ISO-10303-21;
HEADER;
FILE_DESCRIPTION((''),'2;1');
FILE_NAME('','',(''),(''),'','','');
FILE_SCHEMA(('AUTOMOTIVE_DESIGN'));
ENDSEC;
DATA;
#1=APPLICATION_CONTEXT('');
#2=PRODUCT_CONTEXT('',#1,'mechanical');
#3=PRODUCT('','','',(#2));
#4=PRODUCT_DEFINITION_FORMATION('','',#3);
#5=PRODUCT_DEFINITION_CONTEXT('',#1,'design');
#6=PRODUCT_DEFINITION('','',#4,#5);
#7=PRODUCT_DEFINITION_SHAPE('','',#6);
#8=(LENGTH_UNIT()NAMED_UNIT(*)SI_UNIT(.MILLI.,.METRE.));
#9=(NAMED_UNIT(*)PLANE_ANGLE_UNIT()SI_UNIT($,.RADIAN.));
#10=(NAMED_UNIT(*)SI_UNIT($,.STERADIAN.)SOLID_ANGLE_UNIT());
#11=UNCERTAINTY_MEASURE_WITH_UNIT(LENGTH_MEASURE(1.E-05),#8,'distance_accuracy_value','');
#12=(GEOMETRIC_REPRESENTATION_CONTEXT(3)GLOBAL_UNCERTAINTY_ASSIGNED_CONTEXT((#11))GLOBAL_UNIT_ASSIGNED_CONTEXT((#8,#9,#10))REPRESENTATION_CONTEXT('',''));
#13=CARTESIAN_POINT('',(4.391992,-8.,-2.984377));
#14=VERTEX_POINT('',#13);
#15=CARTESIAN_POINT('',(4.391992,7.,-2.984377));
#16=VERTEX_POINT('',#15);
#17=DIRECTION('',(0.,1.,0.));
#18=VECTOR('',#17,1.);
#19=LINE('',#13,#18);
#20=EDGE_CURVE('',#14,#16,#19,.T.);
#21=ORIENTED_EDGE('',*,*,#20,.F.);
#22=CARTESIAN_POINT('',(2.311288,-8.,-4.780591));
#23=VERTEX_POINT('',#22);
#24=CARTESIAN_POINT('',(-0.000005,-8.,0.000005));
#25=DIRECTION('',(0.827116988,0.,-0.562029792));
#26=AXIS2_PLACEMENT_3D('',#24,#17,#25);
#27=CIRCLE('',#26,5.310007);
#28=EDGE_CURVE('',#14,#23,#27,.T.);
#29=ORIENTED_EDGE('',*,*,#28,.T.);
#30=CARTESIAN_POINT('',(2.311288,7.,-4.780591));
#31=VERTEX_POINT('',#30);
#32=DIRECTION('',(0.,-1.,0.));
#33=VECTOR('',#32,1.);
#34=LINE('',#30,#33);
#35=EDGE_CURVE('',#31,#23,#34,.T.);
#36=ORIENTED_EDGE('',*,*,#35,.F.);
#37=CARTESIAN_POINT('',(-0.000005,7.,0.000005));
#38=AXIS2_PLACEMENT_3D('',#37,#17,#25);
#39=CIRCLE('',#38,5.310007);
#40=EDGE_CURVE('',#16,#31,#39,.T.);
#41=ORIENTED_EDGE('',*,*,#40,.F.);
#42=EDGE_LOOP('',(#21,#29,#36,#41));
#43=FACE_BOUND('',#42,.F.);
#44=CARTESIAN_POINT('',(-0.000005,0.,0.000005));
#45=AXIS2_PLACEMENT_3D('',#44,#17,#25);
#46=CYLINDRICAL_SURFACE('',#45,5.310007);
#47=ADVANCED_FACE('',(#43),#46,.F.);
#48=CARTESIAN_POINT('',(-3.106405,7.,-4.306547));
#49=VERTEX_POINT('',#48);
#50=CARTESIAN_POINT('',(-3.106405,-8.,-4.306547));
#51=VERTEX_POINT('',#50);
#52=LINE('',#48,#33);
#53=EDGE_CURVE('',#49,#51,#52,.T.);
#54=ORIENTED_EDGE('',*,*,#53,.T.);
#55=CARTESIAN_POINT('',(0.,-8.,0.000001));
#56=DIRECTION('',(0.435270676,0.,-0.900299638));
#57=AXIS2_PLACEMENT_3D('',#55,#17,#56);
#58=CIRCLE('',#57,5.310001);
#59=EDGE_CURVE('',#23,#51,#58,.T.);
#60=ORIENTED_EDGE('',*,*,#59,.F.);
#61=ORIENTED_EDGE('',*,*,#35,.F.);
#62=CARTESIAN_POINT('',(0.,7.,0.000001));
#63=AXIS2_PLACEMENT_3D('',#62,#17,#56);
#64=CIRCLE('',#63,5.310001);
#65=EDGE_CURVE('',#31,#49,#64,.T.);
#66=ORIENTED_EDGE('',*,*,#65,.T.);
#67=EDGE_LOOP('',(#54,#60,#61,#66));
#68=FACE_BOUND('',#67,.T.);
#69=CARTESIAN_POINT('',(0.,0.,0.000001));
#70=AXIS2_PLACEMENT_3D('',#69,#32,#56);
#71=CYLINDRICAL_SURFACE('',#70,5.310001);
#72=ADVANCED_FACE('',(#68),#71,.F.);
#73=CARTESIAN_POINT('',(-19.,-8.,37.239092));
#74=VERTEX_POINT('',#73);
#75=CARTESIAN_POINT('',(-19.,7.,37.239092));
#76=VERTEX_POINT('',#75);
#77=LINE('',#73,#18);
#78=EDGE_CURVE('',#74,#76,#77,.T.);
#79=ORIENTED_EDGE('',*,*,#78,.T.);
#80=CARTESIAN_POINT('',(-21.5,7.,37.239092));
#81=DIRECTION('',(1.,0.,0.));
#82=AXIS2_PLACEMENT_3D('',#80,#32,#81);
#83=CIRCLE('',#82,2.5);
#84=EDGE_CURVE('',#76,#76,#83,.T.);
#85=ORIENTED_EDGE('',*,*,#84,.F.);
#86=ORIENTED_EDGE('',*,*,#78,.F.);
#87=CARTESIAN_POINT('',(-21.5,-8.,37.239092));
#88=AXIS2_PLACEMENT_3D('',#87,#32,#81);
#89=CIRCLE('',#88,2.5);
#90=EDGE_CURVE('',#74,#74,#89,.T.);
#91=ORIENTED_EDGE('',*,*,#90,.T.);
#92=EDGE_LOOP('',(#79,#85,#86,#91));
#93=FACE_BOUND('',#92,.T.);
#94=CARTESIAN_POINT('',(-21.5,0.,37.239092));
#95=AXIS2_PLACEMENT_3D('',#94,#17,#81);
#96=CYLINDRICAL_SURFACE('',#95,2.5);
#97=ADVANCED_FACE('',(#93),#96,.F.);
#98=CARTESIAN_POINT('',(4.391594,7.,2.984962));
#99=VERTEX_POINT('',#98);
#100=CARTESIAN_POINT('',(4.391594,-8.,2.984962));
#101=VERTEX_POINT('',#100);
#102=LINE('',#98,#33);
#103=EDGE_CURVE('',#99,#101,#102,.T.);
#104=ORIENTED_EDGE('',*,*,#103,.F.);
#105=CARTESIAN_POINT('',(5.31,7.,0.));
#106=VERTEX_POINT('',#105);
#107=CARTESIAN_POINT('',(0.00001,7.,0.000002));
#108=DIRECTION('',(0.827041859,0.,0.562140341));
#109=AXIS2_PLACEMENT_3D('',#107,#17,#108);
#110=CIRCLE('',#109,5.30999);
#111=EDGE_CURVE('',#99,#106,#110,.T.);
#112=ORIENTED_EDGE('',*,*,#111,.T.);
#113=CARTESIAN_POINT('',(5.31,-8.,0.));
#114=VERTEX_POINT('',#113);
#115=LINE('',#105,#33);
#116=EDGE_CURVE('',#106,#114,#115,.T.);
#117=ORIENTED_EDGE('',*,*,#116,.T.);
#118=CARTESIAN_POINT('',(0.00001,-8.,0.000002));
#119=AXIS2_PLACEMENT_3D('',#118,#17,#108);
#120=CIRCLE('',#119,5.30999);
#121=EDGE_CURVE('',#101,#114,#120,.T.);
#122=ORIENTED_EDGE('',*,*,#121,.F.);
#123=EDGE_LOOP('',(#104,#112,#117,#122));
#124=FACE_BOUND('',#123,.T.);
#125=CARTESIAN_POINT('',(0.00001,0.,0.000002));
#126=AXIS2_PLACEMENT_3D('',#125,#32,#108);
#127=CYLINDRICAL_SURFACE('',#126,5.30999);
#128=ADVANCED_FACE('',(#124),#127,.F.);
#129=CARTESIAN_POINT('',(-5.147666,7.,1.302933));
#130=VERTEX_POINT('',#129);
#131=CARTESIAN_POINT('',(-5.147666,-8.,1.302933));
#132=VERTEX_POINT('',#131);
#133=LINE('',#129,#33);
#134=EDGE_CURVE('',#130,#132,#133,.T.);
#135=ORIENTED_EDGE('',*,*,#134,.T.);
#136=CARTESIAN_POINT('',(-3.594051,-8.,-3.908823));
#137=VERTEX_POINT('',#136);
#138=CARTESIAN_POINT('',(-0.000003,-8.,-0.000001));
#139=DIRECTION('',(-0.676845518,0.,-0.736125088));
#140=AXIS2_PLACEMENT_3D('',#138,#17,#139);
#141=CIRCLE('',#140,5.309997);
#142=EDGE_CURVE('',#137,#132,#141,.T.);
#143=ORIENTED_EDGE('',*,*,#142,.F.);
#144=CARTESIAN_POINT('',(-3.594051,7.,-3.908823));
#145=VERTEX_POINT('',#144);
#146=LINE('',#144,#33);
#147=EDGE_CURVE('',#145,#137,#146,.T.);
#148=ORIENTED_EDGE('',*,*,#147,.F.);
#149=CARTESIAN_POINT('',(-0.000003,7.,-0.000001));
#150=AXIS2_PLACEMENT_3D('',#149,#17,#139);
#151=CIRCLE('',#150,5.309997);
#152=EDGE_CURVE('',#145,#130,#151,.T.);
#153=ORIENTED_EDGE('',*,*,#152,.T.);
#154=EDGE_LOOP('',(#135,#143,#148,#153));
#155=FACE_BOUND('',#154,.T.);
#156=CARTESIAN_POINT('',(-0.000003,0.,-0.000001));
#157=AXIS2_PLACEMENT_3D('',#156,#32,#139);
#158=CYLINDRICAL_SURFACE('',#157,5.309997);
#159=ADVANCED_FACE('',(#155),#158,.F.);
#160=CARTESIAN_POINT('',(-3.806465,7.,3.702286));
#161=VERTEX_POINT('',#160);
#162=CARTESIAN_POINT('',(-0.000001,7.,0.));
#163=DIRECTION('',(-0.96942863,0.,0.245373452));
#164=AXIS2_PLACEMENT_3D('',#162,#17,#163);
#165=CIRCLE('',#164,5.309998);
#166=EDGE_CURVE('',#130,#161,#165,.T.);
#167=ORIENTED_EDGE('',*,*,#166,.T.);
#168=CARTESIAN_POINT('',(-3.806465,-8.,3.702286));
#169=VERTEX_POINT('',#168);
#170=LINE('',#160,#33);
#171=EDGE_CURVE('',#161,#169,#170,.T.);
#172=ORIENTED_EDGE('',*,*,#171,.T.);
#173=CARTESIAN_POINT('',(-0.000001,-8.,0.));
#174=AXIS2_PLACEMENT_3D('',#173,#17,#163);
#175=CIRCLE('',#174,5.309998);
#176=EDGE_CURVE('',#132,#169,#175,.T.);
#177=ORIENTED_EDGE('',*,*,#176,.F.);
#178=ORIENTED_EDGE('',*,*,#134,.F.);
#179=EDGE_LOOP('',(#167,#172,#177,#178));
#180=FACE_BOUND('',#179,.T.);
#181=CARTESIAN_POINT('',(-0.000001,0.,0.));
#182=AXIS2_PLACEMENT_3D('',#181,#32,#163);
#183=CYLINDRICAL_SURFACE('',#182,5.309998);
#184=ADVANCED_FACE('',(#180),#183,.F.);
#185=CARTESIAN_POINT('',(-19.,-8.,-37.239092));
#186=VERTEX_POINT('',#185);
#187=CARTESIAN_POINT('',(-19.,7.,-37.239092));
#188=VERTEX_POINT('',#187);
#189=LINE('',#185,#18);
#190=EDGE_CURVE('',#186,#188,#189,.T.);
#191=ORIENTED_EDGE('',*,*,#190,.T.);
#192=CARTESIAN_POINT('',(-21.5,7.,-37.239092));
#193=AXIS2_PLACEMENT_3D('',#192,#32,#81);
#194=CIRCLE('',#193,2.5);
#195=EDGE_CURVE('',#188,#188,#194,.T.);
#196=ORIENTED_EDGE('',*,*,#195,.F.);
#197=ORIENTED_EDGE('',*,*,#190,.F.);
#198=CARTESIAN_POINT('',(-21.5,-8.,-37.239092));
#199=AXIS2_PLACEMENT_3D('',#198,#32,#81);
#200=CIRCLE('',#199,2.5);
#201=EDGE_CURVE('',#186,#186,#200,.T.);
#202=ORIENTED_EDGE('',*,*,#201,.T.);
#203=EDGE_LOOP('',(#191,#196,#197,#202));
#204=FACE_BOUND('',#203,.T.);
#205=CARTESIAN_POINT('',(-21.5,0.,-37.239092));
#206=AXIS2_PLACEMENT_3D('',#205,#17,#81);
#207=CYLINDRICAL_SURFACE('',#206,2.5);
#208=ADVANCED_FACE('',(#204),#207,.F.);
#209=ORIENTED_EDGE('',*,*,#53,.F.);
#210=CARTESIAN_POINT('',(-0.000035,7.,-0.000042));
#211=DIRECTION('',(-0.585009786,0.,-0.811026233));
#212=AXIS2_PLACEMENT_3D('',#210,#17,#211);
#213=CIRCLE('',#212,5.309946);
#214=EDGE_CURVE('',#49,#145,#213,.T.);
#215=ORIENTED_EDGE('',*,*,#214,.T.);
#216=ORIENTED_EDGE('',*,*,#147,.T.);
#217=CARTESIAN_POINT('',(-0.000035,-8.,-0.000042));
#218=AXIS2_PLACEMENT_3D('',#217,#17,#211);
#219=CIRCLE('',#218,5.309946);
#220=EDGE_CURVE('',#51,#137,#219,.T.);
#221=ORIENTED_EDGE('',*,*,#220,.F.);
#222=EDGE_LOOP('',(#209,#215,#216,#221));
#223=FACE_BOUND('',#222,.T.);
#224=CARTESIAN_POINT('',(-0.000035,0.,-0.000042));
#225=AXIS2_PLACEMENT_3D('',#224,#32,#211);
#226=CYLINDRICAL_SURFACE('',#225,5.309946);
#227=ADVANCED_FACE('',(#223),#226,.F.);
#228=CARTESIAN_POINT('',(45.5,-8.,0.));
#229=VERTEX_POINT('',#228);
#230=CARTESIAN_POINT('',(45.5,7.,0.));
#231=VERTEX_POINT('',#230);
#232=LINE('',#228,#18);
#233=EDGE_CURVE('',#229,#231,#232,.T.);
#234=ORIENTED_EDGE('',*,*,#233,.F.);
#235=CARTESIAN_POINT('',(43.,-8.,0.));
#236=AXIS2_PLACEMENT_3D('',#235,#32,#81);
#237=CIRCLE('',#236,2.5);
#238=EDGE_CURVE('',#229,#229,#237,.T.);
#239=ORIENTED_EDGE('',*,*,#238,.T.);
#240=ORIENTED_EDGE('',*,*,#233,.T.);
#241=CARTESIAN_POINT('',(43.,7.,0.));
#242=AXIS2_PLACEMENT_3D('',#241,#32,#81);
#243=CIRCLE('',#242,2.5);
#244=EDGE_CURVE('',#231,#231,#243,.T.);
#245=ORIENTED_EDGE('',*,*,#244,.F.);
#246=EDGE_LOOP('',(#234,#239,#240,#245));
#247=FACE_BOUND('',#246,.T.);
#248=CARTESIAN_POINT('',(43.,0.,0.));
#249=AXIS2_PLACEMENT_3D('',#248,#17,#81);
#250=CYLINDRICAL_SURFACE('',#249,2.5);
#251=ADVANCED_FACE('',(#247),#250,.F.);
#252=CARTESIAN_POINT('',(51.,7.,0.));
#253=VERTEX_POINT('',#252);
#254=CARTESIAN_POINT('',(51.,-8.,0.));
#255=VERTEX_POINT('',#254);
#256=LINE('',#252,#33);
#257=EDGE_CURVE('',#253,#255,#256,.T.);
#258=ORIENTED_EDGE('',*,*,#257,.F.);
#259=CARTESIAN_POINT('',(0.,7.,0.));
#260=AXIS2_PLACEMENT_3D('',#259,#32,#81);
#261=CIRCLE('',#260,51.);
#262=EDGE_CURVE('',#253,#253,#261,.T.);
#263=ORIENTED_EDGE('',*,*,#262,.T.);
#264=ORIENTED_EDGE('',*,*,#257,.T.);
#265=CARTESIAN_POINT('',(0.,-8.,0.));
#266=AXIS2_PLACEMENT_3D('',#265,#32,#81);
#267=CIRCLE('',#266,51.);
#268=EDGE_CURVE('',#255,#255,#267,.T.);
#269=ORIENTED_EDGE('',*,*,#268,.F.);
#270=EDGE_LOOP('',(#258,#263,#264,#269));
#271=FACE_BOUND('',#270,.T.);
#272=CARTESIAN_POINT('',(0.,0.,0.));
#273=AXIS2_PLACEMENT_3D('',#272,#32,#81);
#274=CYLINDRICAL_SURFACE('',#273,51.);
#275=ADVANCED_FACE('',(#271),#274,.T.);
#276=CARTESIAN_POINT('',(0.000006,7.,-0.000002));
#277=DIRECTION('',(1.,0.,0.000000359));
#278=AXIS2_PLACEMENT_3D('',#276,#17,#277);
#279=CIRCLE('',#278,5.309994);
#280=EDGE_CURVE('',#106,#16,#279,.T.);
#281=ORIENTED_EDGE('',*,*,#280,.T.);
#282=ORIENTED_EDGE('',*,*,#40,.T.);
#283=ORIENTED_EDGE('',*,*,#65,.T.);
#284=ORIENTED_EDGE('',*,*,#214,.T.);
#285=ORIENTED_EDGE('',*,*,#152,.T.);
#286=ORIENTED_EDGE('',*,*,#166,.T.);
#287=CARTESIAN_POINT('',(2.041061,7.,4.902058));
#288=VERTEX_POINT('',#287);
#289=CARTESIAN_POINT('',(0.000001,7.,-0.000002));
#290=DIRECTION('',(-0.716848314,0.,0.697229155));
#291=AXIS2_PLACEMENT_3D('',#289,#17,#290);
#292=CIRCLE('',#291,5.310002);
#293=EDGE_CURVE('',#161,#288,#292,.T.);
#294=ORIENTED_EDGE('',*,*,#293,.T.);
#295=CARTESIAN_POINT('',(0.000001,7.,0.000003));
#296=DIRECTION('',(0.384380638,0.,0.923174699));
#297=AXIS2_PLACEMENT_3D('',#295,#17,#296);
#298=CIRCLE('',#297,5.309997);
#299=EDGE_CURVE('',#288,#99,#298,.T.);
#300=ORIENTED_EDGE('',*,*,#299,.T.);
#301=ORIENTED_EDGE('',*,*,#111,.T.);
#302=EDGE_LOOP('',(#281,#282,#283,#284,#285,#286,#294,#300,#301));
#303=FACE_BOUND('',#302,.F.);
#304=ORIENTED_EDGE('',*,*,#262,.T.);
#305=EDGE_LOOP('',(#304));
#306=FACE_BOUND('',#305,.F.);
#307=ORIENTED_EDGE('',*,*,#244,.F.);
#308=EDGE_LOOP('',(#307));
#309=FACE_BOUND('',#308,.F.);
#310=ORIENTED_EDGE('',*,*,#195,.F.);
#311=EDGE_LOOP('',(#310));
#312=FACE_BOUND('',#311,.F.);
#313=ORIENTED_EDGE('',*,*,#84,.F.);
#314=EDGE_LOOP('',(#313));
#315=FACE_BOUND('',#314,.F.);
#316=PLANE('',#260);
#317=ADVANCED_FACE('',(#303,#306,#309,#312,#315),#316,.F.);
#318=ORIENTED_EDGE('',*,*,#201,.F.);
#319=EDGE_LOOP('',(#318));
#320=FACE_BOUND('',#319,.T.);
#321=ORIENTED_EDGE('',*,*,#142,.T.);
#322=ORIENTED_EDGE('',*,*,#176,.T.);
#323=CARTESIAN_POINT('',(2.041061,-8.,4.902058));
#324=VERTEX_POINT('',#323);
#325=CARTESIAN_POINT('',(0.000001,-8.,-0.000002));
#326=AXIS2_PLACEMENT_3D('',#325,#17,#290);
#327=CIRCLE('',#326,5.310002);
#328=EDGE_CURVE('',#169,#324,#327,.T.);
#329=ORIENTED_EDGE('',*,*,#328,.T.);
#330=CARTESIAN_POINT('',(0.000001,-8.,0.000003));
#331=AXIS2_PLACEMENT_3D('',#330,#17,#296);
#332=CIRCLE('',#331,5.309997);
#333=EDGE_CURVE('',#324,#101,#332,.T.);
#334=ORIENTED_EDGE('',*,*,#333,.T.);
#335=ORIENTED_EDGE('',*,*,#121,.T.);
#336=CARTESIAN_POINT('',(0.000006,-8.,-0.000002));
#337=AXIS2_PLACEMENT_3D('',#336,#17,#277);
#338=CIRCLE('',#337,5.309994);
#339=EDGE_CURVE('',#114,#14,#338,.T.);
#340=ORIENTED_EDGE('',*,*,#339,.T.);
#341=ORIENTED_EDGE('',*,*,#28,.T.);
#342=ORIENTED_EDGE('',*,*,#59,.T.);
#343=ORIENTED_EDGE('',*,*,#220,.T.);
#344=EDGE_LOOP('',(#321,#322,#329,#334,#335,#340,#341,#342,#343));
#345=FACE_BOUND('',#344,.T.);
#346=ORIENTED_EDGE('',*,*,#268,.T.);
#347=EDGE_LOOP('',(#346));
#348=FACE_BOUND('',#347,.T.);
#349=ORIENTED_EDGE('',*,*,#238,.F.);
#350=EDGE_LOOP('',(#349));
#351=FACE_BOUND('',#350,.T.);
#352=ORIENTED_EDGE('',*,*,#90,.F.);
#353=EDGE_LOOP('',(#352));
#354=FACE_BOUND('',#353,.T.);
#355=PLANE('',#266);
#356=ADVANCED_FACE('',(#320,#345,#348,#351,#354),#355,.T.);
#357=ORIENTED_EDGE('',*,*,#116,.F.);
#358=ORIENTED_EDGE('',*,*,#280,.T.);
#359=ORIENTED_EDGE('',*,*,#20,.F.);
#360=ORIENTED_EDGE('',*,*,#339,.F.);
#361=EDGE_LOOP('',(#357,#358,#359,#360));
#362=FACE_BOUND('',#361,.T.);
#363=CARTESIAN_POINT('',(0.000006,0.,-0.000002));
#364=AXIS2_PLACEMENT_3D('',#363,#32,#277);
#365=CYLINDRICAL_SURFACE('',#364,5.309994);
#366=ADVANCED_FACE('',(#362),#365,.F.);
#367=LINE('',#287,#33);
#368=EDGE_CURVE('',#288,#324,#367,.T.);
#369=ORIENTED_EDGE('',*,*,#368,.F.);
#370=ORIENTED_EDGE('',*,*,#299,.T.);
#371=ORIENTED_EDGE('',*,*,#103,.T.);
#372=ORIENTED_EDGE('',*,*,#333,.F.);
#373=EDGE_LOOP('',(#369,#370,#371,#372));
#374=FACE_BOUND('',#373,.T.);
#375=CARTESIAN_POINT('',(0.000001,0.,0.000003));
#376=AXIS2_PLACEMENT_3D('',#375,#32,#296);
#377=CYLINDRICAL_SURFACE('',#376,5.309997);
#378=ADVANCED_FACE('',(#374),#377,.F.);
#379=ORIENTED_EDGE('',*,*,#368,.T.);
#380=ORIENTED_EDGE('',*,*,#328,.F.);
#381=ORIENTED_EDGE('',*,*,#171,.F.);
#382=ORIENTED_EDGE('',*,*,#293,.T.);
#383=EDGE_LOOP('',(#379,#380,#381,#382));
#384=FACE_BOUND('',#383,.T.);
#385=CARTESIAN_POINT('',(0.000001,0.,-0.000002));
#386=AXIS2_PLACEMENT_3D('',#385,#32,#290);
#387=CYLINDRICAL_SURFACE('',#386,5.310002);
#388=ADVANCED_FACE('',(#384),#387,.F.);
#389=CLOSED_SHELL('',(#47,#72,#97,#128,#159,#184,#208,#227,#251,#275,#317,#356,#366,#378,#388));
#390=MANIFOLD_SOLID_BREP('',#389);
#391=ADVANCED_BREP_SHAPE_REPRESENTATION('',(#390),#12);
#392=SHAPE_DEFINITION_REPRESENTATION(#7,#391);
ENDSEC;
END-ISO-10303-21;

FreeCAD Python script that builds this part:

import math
import FreeCAD as App
import Part
import Sketcher

V = App.Vector

doc = App.newDocument("Part")
body = doc.addObject("PartDesign::Body", "Body")

# Sketch on XZ plane
sketch1 = body.newObject("Sketcher::SketchObject", "Sketch")
sketch1.AttachmentSupport = (doc.getObject("XZ_Plane"), [""])
sketch1.MapMode = "FlatFace"
sketch1.addGeometry([
    Part.Circle(V(0, 0, 0), V(0, 0, 1), 51),  # 0
    Part.Circle(V(-21.5, -37.239092, 0), V(0, 0, 1), 2.5),  # 1
    Part.ArcOfCircle(Part.Circle(V(0.000001, -0.000002, 0), V(0, 0, 1), 5.310002), math.radians(67.394726), math.radians(135.794881)),  # 2
    Part.ArcOfCircle(Part.Circle(V(0.000001, 0.000003, 0), V(0, 0, 1), 5.309997), math.radians(34.203888), math.radians(67.394705)),  # 3
    Part.ArcOfCircle(Part.Circle(V(0.00001, 0.000002, 0), V(0, 0, 1), 5.30999), math.radians(-0.000026), math.radians(34.203946)),  # 4
    Part.ArcOfCircle(Part.Circle(V(0.000006, -0.000002, 0), V(0, 0, 1), 5.309994), math.radians(-34.196294), math.radians(0.000021)),  # 5
    Part.ArcOfCircle(Part.Circle(V(-0.000005, 0.000005, 0), V(0, 0, 1), 5.310007), math.radians(-64.197448), math.radians(-34.196288)),  # 6
    Part.ArcOfCircle(Part.Circle(V(0, 0.000001, 0), V(0, 0, 1), 5.310001), math.radians(-125.803721), math.radians(-64.197481)),  # 7
    Part.ArcOfCircle(Part.Circle(V(-0.000035, -0.000042, 0), V(0, 0, 1), 5.309946), math.radians(-132.597677), math.radians(-125.803681)),  # 8
    Part.ArcOfCircle(Part.Circle(V(-0.000003, -0.000001, 0), V(0, 0, 1), 5.309997), math.radians(165.796076), math.radians(227.40237)),  # 9
    Part.ArcOfCircle(Part.Circle(V(-0.000001, 0, 0), V(0, 0, 1), 5.309998), math.radians(135.794882), math.radians(165.796095)),  # 10
    Part.Circle(V(-21.5, 37.239092, 0), V(0, 0, 1), 2.5),  # 11
    Part.Circle(V(43, 0, 0), V(0, 0, 1), 2.5),  # 12
], False)
sketch1.addConstraint([
    Sketcher.Constraint("Coincident", 2, 1, 3, 2),
    Sketcher.Constraint("Coincident", 3, 1, 4, 2),
    Sketcher.Constraint("Coincident", 4, 1, 5, 2),
    Sketcher.Constraint("Coincident", 5, 1, 6, 2),
    Sketcher.Constraint("Coincident", 6, 1, 7, 2),
    Sketcher.Constraint("Coincident", 7, 1, 8, 2),
    Sketcher.Constraint("Coincident", 8, 1, 9, 2),
    Sketcher.Constraint("Coincident", 9, 1, 10, 2),
    Sketcher.Constraint("Coincident", 10, 1, 2, 2),
    Sketcher.Constraint("Coincident", 0, 3, -1, 1),
    Sketcher.Constraint("Coincident", 2, 3, -1, 1),
    Sketcher.Constraint("Coincident", 3, 3, -1, 1),
    Sketcher.Constraint("Coincident", 5, 3, -1, 1),
    Sketcher.Constraint("Coincident", 6, 3, -1, 1),
    Sketcher.Constraint("Coincident", 7, 3, -1, 1),
    Sketcher.Constraint("Coincident", 9, 3, -1, 1),
    Sketcher.Constraint("Coincident", 10, 3, -1, 1),
    Sketcher.Constraint("Coincident", 4, 3, 3, 3),
    Sketcher.Constraint("PointOnObject", 12, 3, -1),
    Sketcher.Constraint("PointOnObject", 4, 1, -1),
    Sketcher.Constraint("Diameter", 0, 102.0),
    Sketcher.Constraint("Diameter", 1, 5.0),
    Sketcher.Constraint("Diameter", 11, 5.0),
    Sketcher.Constraint("Diameter", 12, 5.0),
    Sketcher.Constraint("Radius", 2, 5.310002),
    Sketcher.Constraint("DistanceX", -1, 1, 12, 3, 43.0),
    Sketcher.Constraint("DistanceX", 1, 3, -1, 1, 21.5),
    Sketcher.Constraint("DistanceX", 11, 3, -1, 1, 21.5),
    Sketcher.Constraint("Radius", 8, 5.309946),
    Sketcher.Constraint("DistanceX", 7, 1, 9, 3, 3.106402),
    Sketcher.Constraint("DistanceX", 9, 1, 10, 1, 1.341201),
    Sketcher.Constraint("DistanceX", -1, 1, 2, 1, 2.041061),
    Sketcher.Constraint("DistanceY", -1, 1, 3, 1, 2.984962),
    Sketcher.Constraint("DistanceX", -1, 1, 6, 1, 2.311288),
    Sketcher.Constraint("DistanceX", 8, 1, -1, 1, 3.594051),
    Sketcher.Constraint("DistanceY", 1, 3, 2, 3, 37.23909),
    Sketcher.Constraint("DistanceY", 3, 3, 11, 3, 37.239089),
    Sketcher.Constraint("DistanceY", 5, 1, 4, 3, 2.984379),
    Sketcher.Constraint("DistanceX", 9, 1, 8, 3, 5.147631),
])
pad1 = body.newObject("PartDesign::Pad", "Pad")
pad1.Profile = sketch1
pad1.Type = "TwoLengths"
pad1.Length = 8
pad1.Length2 = 7

# Sketch on XZ plane
sketch2 = body.newObject("Sketcher::SketchObject", "Sketch001")
sketch2.AttachmentSupport = (doc.getObject("XZ_Plane"), [""])
sketch2.MapMode = "FlatFace"
sketch2.AttachmentOffset = App.Placement(V(0, 0, -7), App.Rotation())
sketch2.addGeometry([
    Part.Circle(V(0, 0, 0), V(0, 0, 1), 58),
    Part.Circle(V(0, 0, 0), V(0, 0, 1), 55),
], False)
sketch2.addConstraint([
    Sketcher.Constraint("Coincident", 0, 3, -1, 1),
    Sketcher.Constraint("Coincident", 1, 3, -1, 1),
    Sketcher.Constraint("Diameter", 0, 115.7),
    Sketcher.Constraint("Diameter", 1, 110.7),
])
pocket1 = body.newObject("PartDesign::Pocket", "Pocket")
pocket1.Profile = sketch2
pocket1.Length = 3
pocket1.Reversed = True

doc.recompute()
